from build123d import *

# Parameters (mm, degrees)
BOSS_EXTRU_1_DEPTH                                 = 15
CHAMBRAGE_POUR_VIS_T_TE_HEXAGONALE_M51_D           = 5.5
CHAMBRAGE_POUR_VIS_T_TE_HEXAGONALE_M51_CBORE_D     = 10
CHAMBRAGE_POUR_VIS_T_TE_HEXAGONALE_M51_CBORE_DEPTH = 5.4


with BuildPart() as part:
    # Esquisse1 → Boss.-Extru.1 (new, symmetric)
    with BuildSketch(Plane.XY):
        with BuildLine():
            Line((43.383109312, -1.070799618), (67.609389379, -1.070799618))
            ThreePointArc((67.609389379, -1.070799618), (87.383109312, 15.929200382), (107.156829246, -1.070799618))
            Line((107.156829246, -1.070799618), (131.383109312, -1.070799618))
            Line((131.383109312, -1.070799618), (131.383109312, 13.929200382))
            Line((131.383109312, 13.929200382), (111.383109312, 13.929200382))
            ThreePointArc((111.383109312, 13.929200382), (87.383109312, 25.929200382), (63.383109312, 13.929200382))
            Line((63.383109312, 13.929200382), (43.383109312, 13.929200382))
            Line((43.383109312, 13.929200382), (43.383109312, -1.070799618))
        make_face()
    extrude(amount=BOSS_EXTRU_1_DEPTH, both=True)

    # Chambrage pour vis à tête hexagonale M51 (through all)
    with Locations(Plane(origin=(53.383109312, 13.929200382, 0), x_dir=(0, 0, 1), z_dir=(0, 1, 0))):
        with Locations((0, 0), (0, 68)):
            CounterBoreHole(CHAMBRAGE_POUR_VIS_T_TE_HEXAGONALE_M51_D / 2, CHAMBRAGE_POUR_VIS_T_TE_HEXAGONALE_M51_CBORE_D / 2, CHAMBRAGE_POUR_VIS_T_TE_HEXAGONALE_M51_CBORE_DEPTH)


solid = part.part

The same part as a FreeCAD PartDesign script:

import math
import FreeCAD as App
import Part
import Sketcher

V = App.Vector
Q = App.Units.Quantity

doc = App.newDocument("Part")
body = doc.addObject("PartDesign::Body", "Body")

# Sketch on XY plane
sketch1 = doc.addObject("Sketcher::SketchObject", "Sketch")
body.addObject(sketch1)
sketch1.AttachmentSupport = (doc.XY_Plane, [""])
sketch1.MapMode = "FlatFace"
sketch1.addGeometry([
    Part.LineSegment(V(43.383109, -1.0708, 0), V(67.609389, -1.0708, 0)),  # 0
    Part.ArcOfCircle(Part.Circle(V(87.383109, -4.0708, 0), V(0, 0, 1), 20), math.radians(8.626927), math.radians(171.373073)),  # 1
    Part.LineSegment(V(107.156829, -1.0708, 0), V(131.383109, -1.0708, 0)),  # 2
    Part.LineSegment(V(131.383109, -1.0708, 0), V(131.383109, 13.9292, 0)),  # 3
    Part.LineSegment(V(131.383109, 13.9292, 0), V(111.383109, 13.9292, 0)),  # 4
    Part.ArcOfCircle(Part.Circle(V(87.383109, -4.0708, 0), V(0, 0, 1), 30), math.radians(36.869898), math.radians(143.130102)),  # 5
    Part.LineSegment(V(63.383109, 13.9292, 0), V(43.383109, 13.9292, 0)),  # 6
    Part.LineSegment(V(43.383109, 13.9292, 0), V(43.383109, -1.0708, 0)),  # 7
], False)
sketch1.addConstraint([
    Sketcher.Constraint("Coincident", 0, 2, 1, 2),
    Sketcher.Constraint("Coincident", 1, 1, 2, 1),
    Sketcher.Constraint("Coincident", 2, 2, 3, 1),
    Sketcher.Constraint("Coincident", 3, 2, 4, 1),
    Sketcher.Constraint("Coincident", 4, 2, 5, 1),
    Sketcher.Constraint("Coincident", 5, 2, 6, 1),
    Sketcher.Constraint("Coincident", 6, 2, 7, 1),
    Sketcher.Constraint("Coincident", 7, 2, 0, 1),
    Sketcher.Constraint("Horizontal", 0),
    Sketcher.Constraint("Horizontal", 2),
    Sketcher.Constraint("Vertical", 3),
    Sketcher.Constraint("Horizontal", 4),
    Sketcher.Constraint("Horizontal", 6),
    Sketcher.Constraint("Vertical", 7),
    Sketcher.Constraint("Coincident", 5, 3, 1, 3),
    Sketcher.Constraint("Horizontal", 0, 2, 1, 1),
    Sketcher.Constraint("Horizontal", 4, 2, 5, 2),
    Sketcher.Constraint("Equal", 0, 2),
    Sketcher.Constraint("Radius", 1, Q("20 mm")),
    Sketcher.Constraint("Radius", 5, Q("30 mm")),
    Sketcher.Constraint("DistanceX", 4, 2, 4, 1, Q("20 mm")),
    Sketcher.Constraint("DistanceY", 3, 1, 3, 2, Q("15 mm")),
    Sketcher.Constraint("DistanceY", 5, 3, 0, 2, Q("3 mm")),
    Sketcher.Constraint("DistanceY", 1, 3, -1, 1, Q("4.0708 mm")),
    Sketcher.Constraint("DistanceX", -1, 1, 1, 3, Q("87.383109 mm")),
])
pad1 = doc.addObject("PartDesign::Pad", "Pad")
body.addObject(pad1)
pad1.Profile = sketch1
pad1.Length = 30
pad1.Midplane = True

# Sketch on XZ plane
sketch2 = doc.addObject("Sketcher::SketchObject", "Sketch001")
body.addObject(sketch2)
sketch2.AttachmentSupport = (doc.XZ_Plane, [""])
sketch2.MapMode = "FlatFace"
sketch2.AttachmentOffset = App.Placement(V(0, 0, -13.9292), App.Rotation())
sketch2.addGeometry([
    Part.Circle(V(53.383109, 0, 0), V(0, 0, 1), 2.75),
    Part.Circle(V(121.383109, 0, 0), V(0, 0, 1), 2.75),
], False)
sketch2.addConstraint([
    Sketcher.Constraint("Equal", 0, 1),
    Sketcher.Constraint("PointOnObject", 0, 3, -1),
    Sketcher.Constraint("PointOnObject", 1, 3, -1),
    Sketcher.Constraint("Diameter", 0, Q("5.5 mm")),
    Sketcher.Constraint("DistanceX", 0, 3, 1, 3, Q("68 mm")),
    Sketcher.Constraint("DistanceX", -1, 1, 0, 3, Q("53.383109 mm")),
])
doc.recompute()
hole = doc.addObject("PartDesign::Hole", "Hole")
body.addObject(hole)
hole.Profile = sketch2
hole.ThreadType = "None"
hole.Diameter = 5.5
hole.DepthType = "ThroughAll"
hole.HoleCutType = "Counterbore"
hole.HoleCutDiameter = 10
hole.HoleCutDepth = 5.4
hole.Reversed = True

doc.recompute()
